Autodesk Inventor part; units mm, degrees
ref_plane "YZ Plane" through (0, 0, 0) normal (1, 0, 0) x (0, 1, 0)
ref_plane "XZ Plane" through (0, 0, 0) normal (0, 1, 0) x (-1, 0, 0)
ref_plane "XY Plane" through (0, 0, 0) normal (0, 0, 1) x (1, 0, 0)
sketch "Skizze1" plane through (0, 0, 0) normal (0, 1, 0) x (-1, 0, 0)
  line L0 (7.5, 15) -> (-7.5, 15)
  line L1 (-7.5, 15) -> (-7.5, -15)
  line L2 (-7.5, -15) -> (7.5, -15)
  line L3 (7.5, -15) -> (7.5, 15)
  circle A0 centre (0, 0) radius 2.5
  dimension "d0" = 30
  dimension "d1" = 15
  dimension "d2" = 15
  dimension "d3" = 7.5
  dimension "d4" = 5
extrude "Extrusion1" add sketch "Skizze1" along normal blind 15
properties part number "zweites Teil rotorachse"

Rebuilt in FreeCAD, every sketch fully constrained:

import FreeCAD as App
import Part
import Sketcher


def add_polygon(sketch, points):
    """Adds a closed chain of lines whose ends are joined by coincident constraints."""
    first, n = sketch.GeometryCount, len(points)
    for a, b in zip(points, points[1:] + points[:1]):
        sketch.addGeometry(Part.LineSegment(App.Vector(*a, 0), App.Vector(*b, 0)), False)
    for i in range(n):
        sketch.addConstraint(Sketcher.Constraint("Coincident", first + i, 2, first + (i + 1) % n, 1))

doc = App.newDocument("Part")
body = doc.addObject("PartDesign::Body", "Body")

# Sketch on XZ plane
sketch1 = body.newObject("Sketcher::SketchObject", "Sketch")
sketch1.AttachmentSupport = (doc.getObject("XZ_Plane"), [""])
sketch1.MapMode = "FlatFace"
add_polygon(sketch1, [(-7.5, -15), (-7.5, 15), (7.5, 15), (7.5, -15)])  # lines 0-3
sketch1.addGeometry(Part.Circle(App.Vector(0, 0, 0), App.Vector(0, 0, 1), 2.5), False)  # 4
sketch1.addConstraint(Sketcher.Constraint("Vertical", 0))
sketch1.addConstraint(Sketcher.Constraint("Horizontal", 1))
sketch1.addConstraint(Sketcher.Constraint("Vertical", 2))
sketch1.addConstraint(Sketcher.Constraint("Horizontal", 3))
sketch1.addConstraint(Sketcher.Constraint("Coincident", 4, 3, -1, 1))
sketch1.addConstraint(Sketcher.Constraint("Symmetric", 0, 2, 2, 2, -1, 1))
sketch1.addConstraint(Sketcher.Constraint("Diameter", 4, 5.0))
sketch1.addConstraint(Sketcher.Constraint("DistanceX", 1, 1, 1, 2, 15.0))
sketch1.addConstraint(Sketcher.Constraint("DistanceY", 0, 1, 0, 2, 30.0))
pad1 = body.newObject("PartDesign::Pad", "Pad")
pad1.Profile = sketch1
pad1.Length = 15
pad1.Reversed = True

doc.recompute()
